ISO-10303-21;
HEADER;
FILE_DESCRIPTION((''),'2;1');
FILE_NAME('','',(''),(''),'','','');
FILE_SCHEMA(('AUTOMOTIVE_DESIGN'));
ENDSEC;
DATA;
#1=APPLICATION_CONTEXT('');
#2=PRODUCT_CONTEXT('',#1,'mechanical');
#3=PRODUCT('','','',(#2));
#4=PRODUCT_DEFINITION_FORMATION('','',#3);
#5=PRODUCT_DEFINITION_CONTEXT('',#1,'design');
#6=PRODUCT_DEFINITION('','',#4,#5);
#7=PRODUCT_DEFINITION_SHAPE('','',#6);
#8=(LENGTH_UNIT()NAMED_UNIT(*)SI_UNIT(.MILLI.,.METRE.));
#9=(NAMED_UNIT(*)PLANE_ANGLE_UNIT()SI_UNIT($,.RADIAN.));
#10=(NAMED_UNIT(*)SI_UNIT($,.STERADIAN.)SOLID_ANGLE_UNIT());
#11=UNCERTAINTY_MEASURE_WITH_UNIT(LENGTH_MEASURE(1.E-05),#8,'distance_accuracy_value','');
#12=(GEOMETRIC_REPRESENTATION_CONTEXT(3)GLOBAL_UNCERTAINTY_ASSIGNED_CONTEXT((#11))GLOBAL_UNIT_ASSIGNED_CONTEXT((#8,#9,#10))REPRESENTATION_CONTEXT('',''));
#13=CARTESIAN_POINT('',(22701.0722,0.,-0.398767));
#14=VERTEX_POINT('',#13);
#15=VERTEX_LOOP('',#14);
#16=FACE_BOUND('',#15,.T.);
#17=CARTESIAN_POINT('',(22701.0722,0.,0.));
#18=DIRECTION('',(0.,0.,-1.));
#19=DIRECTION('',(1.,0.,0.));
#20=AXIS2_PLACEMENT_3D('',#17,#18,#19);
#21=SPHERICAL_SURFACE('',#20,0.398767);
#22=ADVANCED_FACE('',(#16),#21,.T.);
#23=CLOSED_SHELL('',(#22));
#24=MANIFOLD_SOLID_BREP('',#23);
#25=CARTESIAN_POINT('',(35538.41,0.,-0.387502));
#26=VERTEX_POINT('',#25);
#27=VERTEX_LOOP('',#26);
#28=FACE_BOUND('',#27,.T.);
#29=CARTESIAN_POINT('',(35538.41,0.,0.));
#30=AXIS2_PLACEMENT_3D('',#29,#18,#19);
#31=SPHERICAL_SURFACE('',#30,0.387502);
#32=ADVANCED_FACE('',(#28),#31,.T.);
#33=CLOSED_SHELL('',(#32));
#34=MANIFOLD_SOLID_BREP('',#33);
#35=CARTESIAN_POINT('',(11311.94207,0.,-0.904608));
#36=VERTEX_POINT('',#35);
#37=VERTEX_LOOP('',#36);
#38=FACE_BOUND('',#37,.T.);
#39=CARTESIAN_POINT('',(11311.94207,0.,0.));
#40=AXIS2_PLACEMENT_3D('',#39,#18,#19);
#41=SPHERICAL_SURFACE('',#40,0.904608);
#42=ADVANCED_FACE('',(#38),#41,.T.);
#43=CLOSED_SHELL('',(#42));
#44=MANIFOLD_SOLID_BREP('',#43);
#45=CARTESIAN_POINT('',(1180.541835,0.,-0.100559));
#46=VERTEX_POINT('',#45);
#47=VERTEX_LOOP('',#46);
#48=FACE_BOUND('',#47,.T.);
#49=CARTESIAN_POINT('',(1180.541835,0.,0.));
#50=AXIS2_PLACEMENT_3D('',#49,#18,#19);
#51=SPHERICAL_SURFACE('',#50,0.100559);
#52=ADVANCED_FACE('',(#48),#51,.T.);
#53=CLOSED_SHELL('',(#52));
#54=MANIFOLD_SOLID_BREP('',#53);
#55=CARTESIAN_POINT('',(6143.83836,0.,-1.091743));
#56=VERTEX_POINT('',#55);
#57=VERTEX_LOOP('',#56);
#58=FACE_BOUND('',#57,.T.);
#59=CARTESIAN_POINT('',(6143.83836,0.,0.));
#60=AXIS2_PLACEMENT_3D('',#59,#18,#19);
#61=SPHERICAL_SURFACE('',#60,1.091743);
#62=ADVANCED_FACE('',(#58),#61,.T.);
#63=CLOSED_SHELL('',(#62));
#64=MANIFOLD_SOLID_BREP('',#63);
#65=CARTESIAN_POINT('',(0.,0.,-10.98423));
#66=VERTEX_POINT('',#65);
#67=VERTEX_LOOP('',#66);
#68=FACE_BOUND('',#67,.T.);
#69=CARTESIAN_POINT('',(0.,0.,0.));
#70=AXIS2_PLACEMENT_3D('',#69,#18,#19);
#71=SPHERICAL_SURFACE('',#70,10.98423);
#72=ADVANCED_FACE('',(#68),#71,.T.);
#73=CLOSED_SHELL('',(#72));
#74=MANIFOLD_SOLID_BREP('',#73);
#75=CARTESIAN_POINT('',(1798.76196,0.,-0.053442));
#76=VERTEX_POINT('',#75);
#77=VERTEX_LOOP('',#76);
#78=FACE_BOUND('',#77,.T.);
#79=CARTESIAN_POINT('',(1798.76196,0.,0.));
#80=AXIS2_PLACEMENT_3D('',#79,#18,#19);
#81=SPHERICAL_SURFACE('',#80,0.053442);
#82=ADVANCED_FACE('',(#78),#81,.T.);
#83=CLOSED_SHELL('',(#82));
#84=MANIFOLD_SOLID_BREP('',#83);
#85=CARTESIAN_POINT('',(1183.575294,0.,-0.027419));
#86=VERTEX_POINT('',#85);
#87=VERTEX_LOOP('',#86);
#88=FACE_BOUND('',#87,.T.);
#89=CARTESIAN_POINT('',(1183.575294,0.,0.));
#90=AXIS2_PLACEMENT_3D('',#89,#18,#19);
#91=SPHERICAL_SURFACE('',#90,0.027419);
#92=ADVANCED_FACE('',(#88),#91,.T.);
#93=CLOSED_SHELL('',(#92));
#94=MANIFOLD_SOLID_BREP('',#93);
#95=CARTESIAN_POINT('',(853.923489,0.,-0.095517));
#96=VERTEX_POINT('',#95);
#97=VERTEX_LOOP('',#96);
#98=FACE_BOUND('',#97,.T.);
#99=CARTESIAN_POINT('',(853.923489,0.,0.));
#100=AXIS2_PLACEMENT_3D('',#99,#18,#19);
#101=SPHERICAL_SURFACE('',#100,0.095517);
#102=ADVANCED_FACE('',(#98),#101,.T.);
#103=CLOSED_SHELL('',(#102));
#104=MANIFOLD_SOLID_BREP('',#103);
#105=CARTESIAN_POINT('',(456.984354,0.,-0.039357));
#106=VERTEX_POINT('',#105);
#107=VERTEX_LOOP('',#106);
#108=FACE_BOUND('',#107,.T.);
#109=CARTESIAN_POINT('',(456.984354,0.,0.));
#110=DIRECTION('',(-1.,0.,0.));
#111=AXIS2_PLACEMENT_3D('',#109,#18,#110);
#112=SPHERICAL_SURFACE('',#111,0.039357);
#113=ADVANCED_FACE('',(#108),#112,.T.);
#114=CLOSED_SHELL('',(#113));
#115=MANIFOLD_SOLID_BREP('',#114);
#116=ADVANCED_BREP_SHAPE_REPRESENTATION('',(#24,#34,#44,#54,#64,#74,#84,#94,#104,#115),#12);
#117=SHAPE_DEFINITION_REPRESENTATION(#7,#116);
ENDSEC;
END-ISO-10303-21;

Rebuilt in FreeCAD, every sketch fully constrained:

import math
import FreeCAD as App
import Part
import Sketcher
from FreeCAD import Vector

doc = App.newDocument("Part")
body = doc.addObject("PartDesign::Body", "Body")

# Sketch on XZ plane
sketch1 = body.newObject("Sketcher::SketchObject", "Sketch")
sketch1.AttachmentSupport = (doc.getObject("XZ_Plane"), [""])
sketch1.MapMode = "FlatFace"
sketch1.addGeometry([
    Part.LineSegment(Vector(0, -11, 0), Vector(0, 11, 0)),
    Part.ArcOfCircle(Part.Circle(Vector(0, 0, 0), Vector(0, 0, 1), 11), math.radians(-90), math.radians(90)),
], False)
sketch1.addConstraint([
    Sketcher.Constraint("Coincident", 0, 1, 1, 1),
    Sketcher.Constraint("Coincident", 1, 2, 0, 2),
    Sketcher.Constraint("Vertical", 0),
    Sketcher.Constraint("Coincident", 1, 3, -1, 1),
    Sketcher.Constraint("PointOnObject", 0, 1, -2),
    Sketcher.Constraint("Radius", 1, 10.98423),
])
revolution = body.newObject("PartDesign::Revolution", "Revolution")
revolution.Profile = sketch1
revolution.ReferenceAxis = (sketch1, ["V_Axis"])
revolution.Angle = 360
body2 = doc.addObject("PartDesign::Body", "Body001")

# Sketch on XZ plane
sketch2 = body2.newObject("Sketcher::SketchObject", "Sketch001")
sketch2.AttachmentSupport = (doc.getObject("XZ_Plane001"), [""])
sketch2.MapMode = "FlatFace"
sketch2.addGeometry([
    Part.LineSegment(Vector(456.984, -0.039, 0), Vector(456.984, 0.039, 0)),
    Part.ArcOfCircle(Part.Circle(Vector(456.984, 0, 0), Vector(0, 0, 1), 0.039), math.radians(-90), math.radians(90)),
], False)
sketch2.addGeometry(Part.LineSegment(Vector(456.984, -0.039, 0), Vector(456.984, 0.039, 0)), True)  # axis
sketch2.addConstraint([
    Sketcher.Constraint("Coincident", 0, 1, 1, 1),
    Sketcher.Constraint("Coincident", 1, 2, 0, 2),
    Sketcher.Constraint("Vertical", 0),
    Sketcher.Constraint("Vertical", 2),
    Sketcher.Constraint("Coincident", 2, 1, 0, 1),
    Sketcher.Constraint("PointOnObject", 1, 3, -1),
    Sketcher.Constraint("Vertical", 1, 3, 0, 1),
    Sketcher.Constraint("Equal", 0, 2),
    Sketcher.Constraint("Radius", 1, 0.039357),
    Sketcher.Constraint("DistanceX", -1, 1, 1, 3, 456.984354),
])
revolution2 = body2.newObject("PartDesign::Revolution", "Revolution001")
revolution2.Profile = sketch2
revolution2.ReferenceAxis = (sketch2, ["Axis0"])
revolution2.Angle = 360
body3 = doc.addObject("PartDesign::Body", "Body002")

# Sketch on XZ plane
sketch3 = body3.newObject("Sketcher::SketchObject", "Sketch002")
sketch3.AttachmentSupport = (doc.getObject("XZ_Plane002"), [""])
sketch3.MapMode = "FlatFace"
sketch3.addGeometry([
    Part.LineSegment(Vector(853.92, -0.1, 0), Vector(853.92, 0.1, 0)),
    Part.ArcOfCircle(Part.Circle(Vector(853.92, 0, 0), Vector(0, 0, 1), 0.1), math.radians(-90), math.radians(90)),
], False)
sketch3.addGeometry(Part.LineSegment(Vector(853.92, -0.1, 0), Vector(853.92, 0.1, 0)), True)  # axis
sketch3.addConstraint([
    Sketcher.Constraint("Coincident", 0, 1, 1, 1),
    Sketcher.Constraint("Coincident", 1, 2, 0, 2),
    Sketcher.Constraint("Vertical", 0),
    Sketcher.Constraint("Vertical", 2),
    Sketcher.Constraint("Coincident", 2, 1, 0, 1),
    Sketcher.Constraint("PointOnObject", 1, 3, -1),
    Sketcher.Constraint("Vertical", 1, 3, 0, 1),
    Sketcher.Constraint("Equal", 0, 2),
    Sketcher.Constraint("Radius", 1, 0.095517),
    Sketcher.Constraint("DistanceX", -1, 1, 1, 3, 853.923489),
])
revolution3 = body3.newObject("PartDesign::Revolution", "Revolution002")
revolution3.Profile = sketch3
revolution3.ReferenceAxis = (sketch3, ["Axis0"])
revolution3.Angle = 360
body4 = doc.addObject("PartDesign::Body", "Body003")

# Sketch on XZ plane
sketch4 = body4.newObject("Sketcher::SketchObject", "Sketch003")
sketch4.AttachmentSupport = (doc.getObject("XZ_Plane003"), [""])
sketch4.MapMode = "FlatFace"
sketch4.addGeometry([
    Part.LineSegment(Vector(1180.54, -0.1, 0), Vector(1180.54, 0.1, 0)),
    Part.ArcOfCircle(Part.Circle(Vector(1180.54, 0, 0), Vector(0, 0, 1), 0.1), math.radians(-90), math.radians(90)),
], False)
sketch4.addGeometry(Part.LineSegment(Vector(1180.54, -0.1, 0), Vector(1180.54, 0.1, 0)), True)  # axis
sketch4.addConstraint([
    Sketcher.Constraint("Coincident", 0, 1, 1, 1),
    Sketcher.Constraint("Coincident", 1, 2, 0, 2),
    Sketcher.Constraint("Vertical", 0),
    Sketcher.Constraint("Vertical", 2),
    Sketcher.Constraint("Coincident", 2, 1, 0, 1),
    Sketcher.Constraint("PointOnObject", 1, 3, -1),
    Sketcher.Constraint("Vertical", 1, 3, 0, 1),
    Sketcher.Constraint("Equal", 0, 2),
    Sketcher.Constraint("Radius", 1, 0.100559),
    Sketcher.Constraint("DistanceX", -1, 1, 1, 3, 1180.541835),
])
revolution4 = body4.newObject("PartDesign::Revolution", "Revolution003")
revolution4.Profile = sketch4
revolution4.ReferenceAxis = (sketch4, ["Axis0"])
revolution4.Angle = 360
body5 = doc.addObject("PartDesign::Body", "Body004")

# Sketch on XZ plane
sketch5 = body5.newObject("Sketcher::SketchObject", "Sketch004")
sketch5.AttachmentSupport = (doc.getObject("XZ_Plane004"), [""])
sketch5.MapMode = "FlatFace"
sketch5.addGeometry([
    Part.LineSegment(Vector(1183.575, -0.027, 0), Vector(1183.575, 0.027, 0)),
    Part.ArcOfCircle(Part.Circle(Vector(1183.575, 0, 0), Vector(0, 0, 1), 0.027), math.radians(-90), math.radians(90)),
], False)
sketch5.addGeometry(Part.LineSegment(Vector(1183.575, -0.027, 0), Vector(1183.575, 0.027, 0)), True)  # axis
sketch5.addConstraint([
    Sketcher.Constraint("Coincident", 0, 1, 1, 1),
    Sketcher.Constraint("Coincident", 1, 2, 0, 2),
    Sketcher.Constraint("Vertical", 0),
    Sketcher.Constraint("Vertical", 2),
    Sketcher.Constraint("Coincident", 2, 1, 0, 1),
    Sketcher.Constraint("PointOnObject", 1, 3, -1),
    Sketcher.Constraint("Vertical", 1, 3, 0, 1),
    Sketcher.Constraint("Equal", 0, 2),
    Sketcher.Constraint("Radius", 1, 0.027419),
    Sketcher.Constraint("DistanceX", -1, 1, 1, 3, 1183.575294),
])
revolution5 = body5.newObject("PartDesign::Revolution", "Revolution004")
revolution5.Profile = sketch5
revolution5.ReferenceAxis = (sketch5, ["Axis0"])
revolution5.Angle = 360
body6 = doc.addObject("PartDesign::Body", "Body005")

# Sketch on XZ plane
sketch6 = body6.newObject("Sketcher::SketchObject", "Sketch005")
sketch6.AttachmentSupport = (doc.getObject("XZ_Plane005"), [""])
sketch6.MapMode = "FlatFace"
sketch6.addGeometry([
    Part.LineSegment(Vector(1798.76, -0.05, 0), Vector(1798.76, 0.05, 0)),
    Part.ArcOfCircle(Part.Circle(Vector(1798.76, 0, 0), Vector(0, 0, 1), 0.05), math.radians(-90), math.radians(90)),
], False)
sketch6.addGeometry(Part.LineSegment(Vector(1798.76, -0.05, 0), Vector(1798.76, 0.05, 0)), True)  # axis
sketch6.addConstraint([
    Sketcher.Constraint("Coincident", 0, 1, 1, 1),
    Sketcher.Constraint("Coincident", 1, 2, 0, 2),
    Sketcher.Constraint("Vertical", 0),
    Sketcher.Constraint("Vertical", 2),
    Sketcher.Constraint("Coincident", 2, 1, 0, 1),
    Sketcher.Constraint("PointOnObject", 1, 3, -1),
    Sketcher.Constraint("Vertical", 1, 3, 0, 1),
    Sketcher.Constraint("Equal", 0, 2),
    Sketcher.Constraint("Radius", 1, 0.053442),
    Sketcher.Constraint("DistanceX", -1, 1, 1, 3, 1798.76196),
])
revolution6 = body6.newObject("PartDesign::Revolution", "Revolution005")
revolution6.Profile = sketch6
revolution6.ReferenceAxis = (sketch6, ["Axis0"])
revolution6.Angle = 360
body7 = doc.addObject("PartDesign::Body", "Body006")

# Sketch on XZ plane
sketch7 = body7.newObject("Sketcher::SketchObject", "Sketch006")
sketch7.AttachmentSupport = (doc.getObject("XZ_Plane006"), [""])
sketch7.MapMode = "FlatFace"
sketch7.addGeometry([
    Part.LineSegment(Vector(6143.8, -1.1, 0), Vector(6143.8, 1.1, 0)),
    Part.ArcOfCircle(Part.Circle(Vector(6143.8, 0, 0), Vector(0, 0, 1), 1.1), math.radians(-90), math.radians(90)),
], False)
sketch7.addGeometry(Part.LineSegment(Vector(6143.8, -1.1, 0), Vector(6143.8, 1.1, 0)), True)  # axis
sketch7.addConstraint([
    Sketcher.Constraint("Coincident", 0, 1, 1, 1),
    Sketcher.Constraint("Coincident", 1, 2, 0, 2),
    Sketcher.Constraint("Vertical", 0),
    Sketcher.Constraint("Vertical", 2),
    Sketcher.Constraint("Coincident", 2, 1, 0, 1),
    Sketcher.Constraint("PointOnObject", 1, 3, -1),
    Sketcher.Constraint("Vertical", 1, 3, 0, 1),
    Sketcher.Constraint("Equal", 0, 2),
    Sketcher.Constraint("Radius", 1, 1.091743),
    Sketcher.Constraint("DistanceX", -1, 1, 1, 3, 6143.83836),
])
revolution7 = body7.newObject("PartDesign::Revolution", "Revolution006")
revolution7.Profile = sketch7
revolution7.ReferenceAxis = (sketch7, ["Axis0"])
revolution7.Angle = 360
body8 = doc.addObject("PartDesign::Body", "Body007")

# Sketch on XZ plane
sketch8 = body8.newObject("Sketcher::SketchObject", "Sketch007")
sketch8.AttachmentSupport = (doc.getObject("XZ_Plane007"), [""])
sketch8.MapMode = "FlatFace"
sketch8.addGeometry([
    Part.LineSegment(Vector(11311.9, -0.9, 0), Vector(11311.9, 0.9, 0)),
    Part.ArcOfCircle(Part.Circle(Vector(11311.9, 0, 0), Vector(0, 0, 1), 0.9), math.radians(-90), math.radians(90)),
], False)
sketch8.addGeometry(Part.LineSegment(Vector(11311.9, -0.9, 0), Vector(11311.9, 0.9, 0)), True)  # axis
sketch8.addConstraint([
    Sketcher.Constraint("Coincident", 0, 1, 1, 1),
    Sketcher.Constraint("Coincident", 1, 2, 0, 2),
    Sketcher.Constraint("Vertical", 0),
    Sketcher.Constraint("Vertical", 2),
    Sketcher.Constraint("Coincident", 2, 1, 0, 1),
    Sketcher.Constraint("PointOnObject", 1, 3, -1),
    Sketcher.Constraint("Vertical", 1, 3, 0, 1),
    Sketcher.Constraint("Equal", 0, 2),
    Sketcher.Constraint("Radius", 1, 0.904608),
    Sketcher.Constraint("DistanceX", -1, 1, 1, 3, 11311.94207),
])
revolution8 = body8.newObject("PartDesign::Revolution", "Revolution007")
revolution8.Profile = sketch8
revolution8.ReferenceAxis = (sketch8, ["Axis0"])
revolution8.Angle = 360
body9 = doc.addObject("PartDesign::Body", "Body008")

# Sketch on XZ plane
sketch9 = body9.newObject("Sketcher::SketchObject", "Sketch008")
sketch9.AttachmentSupport = (doc.getObject("XZ_Plane008"), [""])
sketch9.MapMode = "FlatFace"
sketch9.addGeometry([
    Part.LineSegment(Vector(22701.07, -0.4, 0), Vector(22701.07, 0.4, 0)),
    Part.ArcOfCircle(Part.Circle(Vector(22701.07, 0, 0), Vector(0, 0, 1), 0.4), math.radians(-90), math.radians(90)),
], False)
sketch9.addGeometry(Part.LineSegment(Vector(22701.07, -0.4, 0), Vector(22701.07, 0.4, 0)), True)  # axis
sketch9.addConstraint([
    Sketcher.Constraint("Coincident", 0, 1, 1, 1),
    Sketcher.Constraint("Coincident", 1, 2, 0, 2),
    Sketcher.Constraint("Vertical", 0),
    Sketcher.Constraint("Vertical", 2),
    Sketcher.Constraint("Coincident", 2, 1, 0, 1),
    Sketcher.Constraint("PointOnObject", 1, 3, -1),
    Sketcher.Constraint("Vertical", 1, 3, 0, 1),
    Sketcher.Constraint("Equal", 0, 2),
    Sketcher.Constraint("Radius", 1, 0.398767),
    Sketcher.Constraint("DistanceX", -1, 1, 1, 3, 22701.0722),
])
revolution9 = body9.newObject("PartDesign::Revolution", "Revolution008")
revolution9.Profile = sketch9
revolution9.ReferenceAxis = (sketch9, ["Axis0"])
revolution9.Angle = 360
body10 = doc.addObject("PartDesign::Body", "Body009")

# Sketch on XZ plane
sketch10 = body10.newObject("Sketcher::SketchObject", "Sketch009")
sketch10.AttachmentSupport = (doc.getObject("XZ_Plane009"), [""])
sketch10.MapMode = "FlatFace"
sketch10.addGeometry([
    Part.LineSegment(Vector(35538.41, -0.39, 0), Vector(35538.41, 0.39, 0)),
    Part.ArcOfCircle(Part.Circle(Vector(35538.41, 0, 0), Vector(0, 0, 1), 0.39), math.radians(-90), math.radians(90)),
], False)
sketch10.addGeometry(Part.LineSegment(Vector(35538.41, -0.39, 0), Vector(35538.41, 0.39, 0)), True)  # axis
sketch10.addConstraint([
    Sketcher.Constraint("Coincident", 0, 1, 1, 1),
    Sketcher.Constraint("Coincident", 1, 2, 0, 2),
    Sketcher.Constraint("Vertical", 0),
    Sketcher.Constraint("Vertical", 2),
    Sketcher.Constraint("Coincident", 2, 1, 0, 1),
    Sketcher.Constraint("PointOnObject", 1, 3, -1),
    Sketcher.Constraint("Vertical", 1, 3, 0, 1),
    Sketcher.Constraint("Equal", 0, 2),
    Sketcher.Constraint("DistanceX", -1, 1, 1, 3, 35538.41),
    Sketcher.Constraint("Radius", 1, 0.387502),
])
revolution10 = body10.newObject("PartDesign::Revolution", "Revolution009")
revolution10.Profile = sketch10
revolution10.ReferenceAxis = (sketch10, ["Axis0"])
revolution10.Angle = 360

doc.recompute()
